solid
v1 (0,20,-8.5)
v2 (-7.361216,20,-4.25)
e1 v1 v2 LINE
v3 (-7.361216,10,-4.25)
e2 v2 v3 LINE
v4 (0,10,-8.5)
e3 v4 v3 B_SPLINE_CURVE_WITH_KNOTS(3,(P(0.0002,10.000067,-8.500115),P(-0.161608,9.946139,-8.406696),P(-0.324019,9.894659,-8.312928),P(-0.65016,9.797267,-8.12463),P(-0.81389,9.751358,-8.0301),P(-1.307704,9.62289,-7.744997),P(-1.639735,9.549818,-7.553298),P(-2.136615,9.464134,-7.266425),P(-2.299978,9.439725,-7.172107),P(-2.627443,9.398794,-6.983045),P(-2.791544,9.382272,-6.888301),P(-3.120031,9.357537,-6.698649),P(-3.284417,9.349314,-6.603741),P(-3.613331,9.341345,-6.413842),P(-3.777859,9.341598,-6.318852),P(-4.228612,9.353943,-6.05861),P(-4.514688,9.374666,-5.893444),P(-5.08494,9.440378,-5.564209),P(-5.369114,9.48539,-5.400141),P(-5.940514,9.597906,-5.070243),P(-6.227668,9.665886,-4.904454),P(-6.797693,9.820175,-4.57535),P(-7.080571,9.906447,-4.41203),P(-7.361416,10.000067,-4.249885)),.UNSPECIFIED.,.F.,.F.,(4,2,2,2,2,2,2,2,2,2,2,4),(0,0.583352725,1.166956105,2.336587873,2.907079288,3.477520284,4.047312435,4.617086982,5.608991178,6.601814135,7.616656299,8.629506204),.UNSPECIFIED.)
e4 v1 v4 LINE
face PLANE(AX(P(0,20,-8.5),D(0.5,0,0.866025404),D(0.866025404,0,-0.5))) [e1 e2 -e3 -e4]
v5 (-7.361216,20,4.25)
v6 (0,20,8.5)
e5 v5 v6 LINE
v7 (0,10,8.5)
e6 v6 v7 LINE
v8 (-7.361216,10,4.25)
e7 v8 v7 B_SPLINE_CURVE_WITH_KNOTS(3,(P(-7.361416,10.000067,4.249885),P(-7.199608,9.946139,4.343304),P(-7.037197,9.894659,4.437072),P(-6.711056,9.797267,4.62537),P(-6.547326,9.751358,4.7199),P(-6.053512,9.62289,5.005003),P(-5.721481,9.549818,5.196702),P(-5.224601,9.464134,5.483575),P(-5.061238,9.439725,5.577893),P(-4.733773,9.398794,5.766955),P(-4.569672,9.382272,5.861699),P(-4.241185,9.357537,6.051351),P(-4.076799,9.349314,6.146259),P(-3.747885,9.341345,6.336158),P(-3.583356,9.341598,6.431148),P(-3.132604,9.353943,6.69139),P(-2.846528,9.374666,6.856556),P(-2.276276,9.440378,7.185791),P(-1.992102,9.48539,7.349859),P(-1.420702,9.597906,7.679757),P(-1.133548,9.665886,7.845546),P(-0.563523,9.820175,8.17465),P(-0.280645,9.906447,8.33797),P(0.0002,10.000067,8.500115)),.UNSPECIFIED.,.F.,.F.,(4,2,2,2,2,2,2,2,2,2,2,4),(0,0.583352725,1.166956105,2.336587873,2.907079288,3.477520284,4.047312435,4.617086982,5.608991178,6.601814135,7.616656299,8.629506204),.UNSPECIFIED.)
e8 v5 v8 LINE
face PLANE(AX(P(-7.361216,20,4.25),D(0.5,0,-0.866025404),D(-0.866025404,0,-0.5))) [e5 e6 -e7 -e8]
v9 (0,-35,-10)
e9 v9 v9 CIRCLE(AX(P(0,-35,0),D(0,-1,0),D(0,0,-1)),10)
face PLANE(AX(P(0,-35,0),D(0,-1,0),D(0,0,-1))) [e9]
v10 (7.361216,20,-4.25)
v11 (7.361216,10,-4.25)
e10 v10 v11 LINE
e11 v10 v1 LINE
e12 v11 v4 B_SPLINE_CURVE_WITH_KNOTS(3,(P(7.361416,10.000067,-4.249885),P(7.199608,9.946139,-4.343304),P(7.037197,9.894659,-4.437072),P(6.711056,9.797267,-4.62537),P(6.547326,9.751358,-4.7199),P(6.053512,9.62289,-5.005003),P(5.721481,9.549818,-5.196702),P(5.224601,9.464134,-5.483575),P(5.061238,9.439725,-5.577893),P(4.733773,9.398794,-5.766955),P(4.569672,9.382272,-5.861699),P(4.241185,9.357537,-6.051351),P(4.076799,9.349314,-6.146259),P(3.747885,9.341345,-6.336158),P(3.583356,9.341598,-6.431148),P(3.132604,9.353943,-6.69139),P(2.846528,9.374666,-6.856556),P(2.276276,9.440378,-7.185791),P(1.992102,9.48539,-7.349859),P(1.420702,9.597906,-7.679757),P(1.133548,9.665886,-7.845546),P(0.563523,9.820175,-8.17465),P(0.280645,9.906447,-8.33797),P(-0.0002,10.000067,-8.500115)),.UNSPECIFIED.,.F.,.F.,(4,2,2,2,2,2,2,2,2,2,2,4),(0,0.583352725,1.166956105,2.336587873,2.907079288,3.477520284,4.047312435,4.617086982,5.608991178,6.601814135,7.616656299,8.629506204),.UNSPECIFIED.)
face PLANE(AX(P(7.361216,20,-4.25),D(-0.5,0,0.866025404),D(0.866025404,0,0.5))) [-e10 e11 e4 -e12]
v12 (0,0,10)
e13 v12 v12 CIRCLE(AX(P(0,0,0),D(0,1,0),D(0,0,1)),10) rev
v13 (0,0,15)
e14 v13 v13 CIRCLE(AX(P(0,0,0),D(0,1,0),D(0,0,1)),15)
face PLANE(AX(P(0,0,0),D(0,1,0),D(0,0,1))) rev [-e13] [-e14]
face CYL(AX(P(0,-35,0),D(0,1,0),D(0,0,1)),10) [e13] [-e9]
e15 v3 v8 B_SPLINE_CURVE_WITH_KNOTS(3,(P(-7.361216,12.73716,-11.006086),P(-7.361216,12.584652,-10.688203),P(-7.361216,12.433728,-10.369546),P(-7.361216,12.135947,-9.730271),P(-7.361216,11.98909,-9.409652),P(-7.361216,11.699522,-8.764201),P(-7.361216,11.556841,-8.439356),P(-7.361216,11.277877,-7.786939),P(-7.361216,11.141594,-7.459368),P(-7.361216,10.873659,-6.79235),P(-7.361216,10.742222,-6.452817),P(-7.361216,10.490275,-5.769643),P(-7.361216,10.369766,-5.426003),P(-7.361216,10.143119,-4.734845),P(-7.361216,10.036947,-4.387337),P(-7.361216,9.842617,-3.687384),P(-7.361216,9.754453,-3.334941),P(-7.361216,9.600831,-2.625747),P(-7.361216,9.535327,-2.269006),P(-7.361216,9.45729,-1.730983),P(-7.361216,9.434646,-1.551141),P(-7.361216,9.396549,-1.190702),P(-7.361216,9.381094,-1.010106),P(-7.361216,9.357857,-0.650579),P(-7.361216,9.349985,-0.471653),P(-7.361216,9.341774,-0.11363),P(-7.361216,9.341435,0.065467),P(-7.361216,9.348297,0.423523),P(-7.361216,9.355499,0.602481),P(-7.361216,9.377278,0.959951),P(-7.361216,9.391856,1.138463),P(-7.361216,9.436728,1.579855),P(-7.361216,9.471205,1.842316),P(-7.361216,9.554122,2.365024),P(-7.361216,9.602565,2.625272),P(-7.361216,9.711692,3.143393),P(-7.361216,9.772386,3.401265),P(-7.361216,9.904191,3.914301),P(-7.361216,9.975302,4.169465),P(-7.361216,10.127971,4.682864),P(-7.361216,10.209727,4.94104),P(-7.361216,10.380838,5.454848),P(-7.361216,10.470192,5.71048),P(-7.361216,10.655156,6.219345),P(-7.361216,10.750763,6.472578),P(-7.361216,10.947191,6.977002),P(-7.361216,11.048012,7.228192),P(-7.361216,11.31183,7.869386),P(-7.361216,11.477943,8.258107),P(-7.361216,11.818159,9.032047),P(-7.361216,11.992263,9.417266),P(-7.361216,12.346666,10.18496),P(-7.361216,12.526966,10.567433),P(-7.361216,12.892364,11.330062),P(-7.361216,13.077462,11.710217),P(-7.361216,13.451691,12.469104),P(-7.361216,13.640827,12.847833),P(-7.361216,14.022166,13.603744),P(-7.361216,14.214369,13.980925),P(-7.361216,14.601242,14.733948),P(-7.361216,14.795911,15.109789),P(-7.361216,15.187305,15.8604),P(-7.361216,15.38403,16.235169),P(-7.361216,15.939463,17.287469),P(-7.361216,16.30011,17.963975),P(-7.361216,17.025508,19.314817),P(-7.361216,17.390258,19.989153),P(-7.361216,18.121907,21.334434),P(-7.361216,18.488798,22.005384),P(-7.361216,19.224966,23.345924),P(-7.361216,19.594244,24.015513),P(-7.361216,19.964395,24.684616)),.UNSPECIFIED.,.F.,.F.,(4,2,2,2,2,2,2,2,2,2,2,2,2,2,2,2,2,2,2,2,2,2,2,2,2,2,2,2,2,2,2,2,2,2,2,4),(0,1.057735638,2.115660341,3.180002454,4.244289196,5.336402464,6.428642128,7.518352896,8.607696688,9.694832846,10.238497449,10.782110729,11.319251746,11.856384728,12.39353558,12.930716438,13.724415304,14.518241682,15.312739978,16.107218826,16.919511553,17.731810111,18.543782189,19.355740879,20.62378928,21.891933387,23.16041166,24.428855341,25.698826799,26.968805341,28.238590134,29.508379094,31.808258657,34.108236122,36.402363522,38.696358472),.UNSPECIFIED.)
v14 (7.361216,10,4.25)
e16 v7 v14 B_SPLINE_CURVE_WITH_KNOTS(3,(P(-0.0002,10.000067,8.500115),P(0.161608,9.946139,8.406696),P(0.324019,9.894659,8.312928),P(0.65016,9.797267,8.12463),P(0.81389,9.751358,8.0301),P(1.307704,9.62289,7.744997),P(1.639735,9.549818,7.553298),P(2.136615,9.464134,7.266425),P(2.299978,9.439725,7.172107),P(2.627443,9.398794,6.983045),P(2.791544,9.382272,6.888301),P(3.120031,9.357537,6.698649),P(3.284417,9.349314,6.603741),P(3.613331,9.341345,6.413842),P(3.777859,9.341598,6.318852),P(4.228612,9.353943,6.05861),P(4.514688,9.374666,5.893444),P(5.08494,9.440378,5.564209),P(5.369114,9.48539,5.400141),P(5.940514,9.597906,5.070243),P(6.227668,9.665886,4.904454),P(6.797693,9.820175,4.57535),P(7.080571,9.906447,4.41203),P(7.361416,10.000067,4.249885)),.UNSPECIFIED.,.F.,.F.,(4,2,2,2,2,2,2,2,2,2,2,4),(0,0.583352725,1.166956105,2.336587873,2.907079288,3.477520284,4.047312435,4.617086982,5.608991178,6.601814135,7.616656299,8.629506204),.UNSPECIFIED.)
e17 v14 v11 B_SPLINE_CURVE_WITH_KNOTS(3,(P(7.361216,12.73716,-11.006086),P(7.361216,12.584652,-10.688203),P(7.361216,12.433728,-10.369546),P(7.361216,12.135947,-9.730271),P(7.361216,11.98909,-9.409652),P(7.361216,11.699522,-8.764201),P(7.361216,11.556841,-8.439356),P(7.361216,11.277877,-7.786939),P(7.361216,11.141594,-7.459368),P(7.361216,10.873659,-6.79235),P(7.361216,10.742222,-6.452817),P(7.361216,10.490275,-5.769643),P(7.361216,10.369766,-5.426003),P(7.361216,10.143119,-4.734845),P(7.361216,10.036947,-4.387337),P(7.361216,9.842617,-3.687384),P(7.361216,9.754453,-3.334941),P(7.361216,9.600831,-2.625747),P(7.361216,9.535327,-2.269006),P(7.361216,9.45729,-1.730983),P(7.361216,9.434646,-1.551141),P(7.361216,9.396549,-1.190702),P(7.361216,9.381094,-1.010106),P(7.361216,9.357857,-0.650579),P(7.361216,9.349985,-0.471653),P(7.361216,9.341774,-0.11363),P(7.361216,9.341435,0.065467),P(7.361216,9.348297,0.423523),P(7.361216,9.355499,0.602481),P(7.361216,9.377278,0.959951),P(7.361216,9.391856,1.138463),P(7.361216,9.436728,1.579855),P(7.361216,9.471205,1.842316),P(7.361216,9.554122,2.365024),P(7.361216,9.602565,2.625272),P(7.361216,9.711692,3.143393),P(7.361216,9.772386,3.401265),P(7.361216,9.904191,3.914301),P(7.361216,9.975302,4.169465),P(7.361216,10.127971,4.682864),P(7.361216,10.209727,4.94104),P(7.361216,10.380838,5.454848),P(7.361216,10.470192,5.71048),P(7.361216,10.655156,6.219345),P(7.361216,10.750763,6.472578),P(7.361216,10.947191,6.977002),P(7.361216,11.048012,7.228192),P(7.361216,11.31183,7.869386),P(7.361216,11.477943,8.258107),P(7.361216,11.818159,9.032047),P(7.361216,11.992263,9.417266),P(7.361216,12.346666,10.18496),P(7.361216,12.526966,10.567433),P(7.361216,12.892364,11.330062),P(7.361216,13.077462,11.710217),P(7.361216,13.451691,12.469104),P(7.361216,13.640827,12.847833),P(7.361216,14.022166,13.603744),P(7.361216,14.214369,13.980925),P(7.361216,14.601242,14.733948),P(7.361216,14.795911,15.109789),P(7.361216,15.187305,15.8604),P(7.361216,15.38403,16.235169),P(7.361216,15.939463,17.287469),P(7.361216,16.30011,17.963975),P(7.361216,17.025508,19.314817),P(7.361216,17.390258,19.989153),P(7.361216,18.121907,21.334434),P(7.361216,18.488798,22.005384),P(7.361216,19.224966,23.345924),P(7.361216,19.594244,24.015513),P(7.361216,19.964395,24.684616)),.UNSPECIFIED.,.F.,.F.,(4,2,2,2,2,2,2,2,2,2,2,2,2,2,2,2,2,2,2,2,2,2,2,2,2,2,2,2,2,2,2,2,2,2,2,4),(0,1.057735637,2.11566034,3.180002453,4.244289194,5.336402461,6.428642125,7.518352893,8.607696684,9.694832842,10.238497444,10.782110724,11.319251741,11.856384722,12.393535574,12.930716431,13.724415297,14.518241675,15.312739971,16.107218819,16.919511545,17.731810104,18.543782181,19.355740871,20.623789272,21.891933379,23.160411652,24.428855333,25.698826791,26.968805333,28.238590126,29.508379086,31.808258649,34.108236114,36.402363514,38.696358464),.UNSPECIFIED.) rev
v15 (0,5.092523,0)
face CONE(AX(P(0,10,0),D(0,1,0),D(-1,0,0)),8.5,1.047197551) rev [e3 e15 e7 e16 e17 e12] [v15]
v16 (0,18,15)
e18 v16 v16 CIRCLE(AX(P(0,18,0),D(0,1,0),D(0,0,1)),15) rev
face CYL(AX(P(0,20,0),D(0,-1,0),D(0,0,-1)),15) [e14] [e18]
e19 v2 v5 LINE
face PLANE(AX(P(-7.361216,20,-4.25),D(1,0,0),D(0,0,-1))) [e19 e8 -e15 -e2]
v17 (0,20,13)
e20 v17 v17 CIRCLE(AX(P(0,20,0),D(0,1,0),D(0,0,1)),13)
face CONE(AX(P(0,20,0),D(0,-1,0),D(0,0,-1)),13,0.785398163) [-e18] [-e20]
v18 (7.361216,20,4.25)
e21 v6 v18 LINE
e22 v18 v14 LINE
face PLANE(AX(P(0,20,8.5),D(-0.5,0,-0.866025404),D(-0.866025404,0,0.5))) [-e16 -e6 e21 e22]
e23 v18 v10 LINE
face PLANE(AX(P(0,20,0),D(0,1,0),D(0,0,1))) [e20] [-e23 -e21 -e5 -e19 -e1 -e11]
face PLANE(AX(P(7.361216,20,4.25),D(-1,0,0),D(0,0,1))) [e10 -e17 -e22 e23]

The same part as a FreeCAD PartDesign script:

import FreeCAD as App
import Part
import Sketcher

V = App.Vector
Q = App.Units.Quantity


def edges_at(feature, points):
    """Names of the edges that pass closest to the given points."""
    edges = feature.Shape.Edges
    near = lambda p: min(range(len(edges)), key=lambda i: edges[i].distToShape(Part.Vertex(*p))[0])
    return sorted({f"Edge{near(p) + 1}" for p in points})

doc = App.newDocument("Part")
body = doc.addObject("PartDesign::Body", "Body")

# Sketch on XZ plane
sketch1 = body.newObject("Sketcher::SketchObject", "Sketch")
sketch1.AttachmentSupport = (doc.getObject("XZ_Plane"), [""])
sketch1.MapMode = "FlatFace"
sketch1.addGeometry([
    Part.Circle(V(0, 0, 0), V(0, 0, 1), 15),  # 0
    Part.LineSegment(V(-7.361216, -4.25, 0), V(0, -8.5, 0)),  # 1
    Part.LineSegment(V(0, -8.5, 0), V(7.361216, -4.25, 0)),  # 2
    Part.LineSegment(V(7.361216, -4.25, 0), V(7.361216, 4.25, 0)),  # 3
    Part.LineSegment(V(7.361216, 4.25, 0), V(0, 8.5, 0)),  # 4
    Part.LineSegment(V(0, 8.5, 0), V(-7.361216, 4.25, 0)),  # 5
    Part.LineSegment(V(-7.361216, 4.25, 0), V(-7.361216, -4.25, 0)),  # 6
], False)
sketch1.addConstraint([
    Sketcher.Constraint("Coincident", 1, 2, 2, 1),
    Sketcher.Constraint("Coincident", 2, 2, 3, 1),
    Sketcher.Constraint("Coincident", 3, 2, 4, 1),
    Sketcher.Constraint("Coincident", 4, 2, 5, 1),
    Sketcher.Constraint("Coincident", 5, 2, 6, 1),
    Sketcher.Constraint("Coincident", 6, 2, 1, 1),
    Sketcher.Constraint("Vertical", 3),
    Sketcher.Constraint("Vertical", 6),
    Sketcher.Constraint("Coincident", 0, 3, -1, 1),
    Sketcher.Constraint("Symmetric", 1, 2, 4, 2, -1, 1),
    Sketcher.Constraint("Symmetric", 2, 2, 5, 2, -1, 1),
    Sketcher.Constraint("PointOnObject", 1, 2, -2),
    Sketcher.Constraint("Parallel", 1, 4),
    Sketcher.Constraint("Horizontal", 3, 2, 5, 2),
    Sketcher.Constraint("Diameter", 0, 30.0),
    Sketcher.Constraint("Angle", 1, Q("-30 deg")),
    Sketcher.Constraint("DistanceY", 3, 1, 3, 2, 8.5),
    Sketcher.Constraint("DistanceY", 1, 2, 4, 2, 17.0),
])
pad1 = body.newObject("PartDesign::Pad", "Pad")
pad1.Profile = sketch1
pad1.Length = 20
pad1.Reversed = True
doc.recompute()

chamfer = body.newObject("PartDesign::Chamfer", "Chamfer")
chamfer.Base = (pad1, edges_at(pad1, [(0, 20, -15)]))
chamfer.Size = 2

# Sketch on XY plane
sketch2 = body.newObject("Sketcher::SketchObject", "Sketch001")
sketch2.AttachmentSupport = (doc.getObject("XY_Plane"), [""])
sketch2.MapMode = "FlatFace"
sketch2.addGeometry([
    Part.LineSegment(V(0, 5.092523, 0), V(0, 0, 0)),  # 0
    Part.LineSegment(V(0, 0, 0), V(15, 0, 0)),  # 1
    Part.LineSegment(V(15, 0, 0), V(15, 10, 0)),  # 2
    Part.LineSegment(V(15, 10, 0), V(8.5, 10, 0)),  # 3
    Part.LineSegment(V(8.5, 10, 0), V(0, 5.092523, 0)),  # 4
], False)
sketch2.addConstraint([
    Sketcher.Constraint("Coincident", 0, 2, 1, 1),
    Sketcher.Constraint("Coincident", 1, 2, 2, 1),
    Sketcher.Constraint("Coincident", 2, 2, 3, 1),
    Sketcher.Constraint("Coincident", 3, 2, 4, 1),
    Sketcher.Constraint("Coincident", 4, 2, 0, 1),
    Sketcher.Constraint("Vertical", 0),
    Sketcher.Constraint("Horizontal", 1),
    Sketcher.Constraint("Vertical", 2),
    Sketcher.Constraint("Horizontal", 3),
    Sketcher.Constraint("Coincident", 0, 2, -1, 1),
    Sketcher.Constraint("DistanceX", 1, 1, 1, 2, 15.0),
    Sketcher.Constraint("DistanceY", 2, 1, 2, 2, 10.0),
    Sketcher.Constraint("Angle", 4, Q("-150 deg")),
    Sketcher.Constraint("DistanceX", 3, 2, 3, 1, 6.5),
])
revolution = body.newObject("PartDesign::Revolution", "Revolution")
revolution.Profile = sketch2
revolution.ReferenceAxis = (sketch2, ["V_Axis"])
revolution.Angle = 360

# Sketch on XZ plane
sketch3 = body.newObject("Sketcher::SketchObject", "Sketch002")
sketch3.AttachmentSupport = (doc.getObject("XZ_Plane"), [""])
sketch3.MapMode = "FlatFace"
sketch3.addGeometry(Part.Circle(V(0, 0, 0), V(0, 0, 1), 10), False)
sketch3.addConstraint([
    Sketcher.Constraint("Coincident", 0, 3, -1, 1),
    Sketcher.Constraint("Diameter", 0, 20.0),
])
pad2 = body.newObject("PartDesign::Pad", "Pad001")
pad2.Profile = sketch3
pad2.Length = 35

doc.recompute()
